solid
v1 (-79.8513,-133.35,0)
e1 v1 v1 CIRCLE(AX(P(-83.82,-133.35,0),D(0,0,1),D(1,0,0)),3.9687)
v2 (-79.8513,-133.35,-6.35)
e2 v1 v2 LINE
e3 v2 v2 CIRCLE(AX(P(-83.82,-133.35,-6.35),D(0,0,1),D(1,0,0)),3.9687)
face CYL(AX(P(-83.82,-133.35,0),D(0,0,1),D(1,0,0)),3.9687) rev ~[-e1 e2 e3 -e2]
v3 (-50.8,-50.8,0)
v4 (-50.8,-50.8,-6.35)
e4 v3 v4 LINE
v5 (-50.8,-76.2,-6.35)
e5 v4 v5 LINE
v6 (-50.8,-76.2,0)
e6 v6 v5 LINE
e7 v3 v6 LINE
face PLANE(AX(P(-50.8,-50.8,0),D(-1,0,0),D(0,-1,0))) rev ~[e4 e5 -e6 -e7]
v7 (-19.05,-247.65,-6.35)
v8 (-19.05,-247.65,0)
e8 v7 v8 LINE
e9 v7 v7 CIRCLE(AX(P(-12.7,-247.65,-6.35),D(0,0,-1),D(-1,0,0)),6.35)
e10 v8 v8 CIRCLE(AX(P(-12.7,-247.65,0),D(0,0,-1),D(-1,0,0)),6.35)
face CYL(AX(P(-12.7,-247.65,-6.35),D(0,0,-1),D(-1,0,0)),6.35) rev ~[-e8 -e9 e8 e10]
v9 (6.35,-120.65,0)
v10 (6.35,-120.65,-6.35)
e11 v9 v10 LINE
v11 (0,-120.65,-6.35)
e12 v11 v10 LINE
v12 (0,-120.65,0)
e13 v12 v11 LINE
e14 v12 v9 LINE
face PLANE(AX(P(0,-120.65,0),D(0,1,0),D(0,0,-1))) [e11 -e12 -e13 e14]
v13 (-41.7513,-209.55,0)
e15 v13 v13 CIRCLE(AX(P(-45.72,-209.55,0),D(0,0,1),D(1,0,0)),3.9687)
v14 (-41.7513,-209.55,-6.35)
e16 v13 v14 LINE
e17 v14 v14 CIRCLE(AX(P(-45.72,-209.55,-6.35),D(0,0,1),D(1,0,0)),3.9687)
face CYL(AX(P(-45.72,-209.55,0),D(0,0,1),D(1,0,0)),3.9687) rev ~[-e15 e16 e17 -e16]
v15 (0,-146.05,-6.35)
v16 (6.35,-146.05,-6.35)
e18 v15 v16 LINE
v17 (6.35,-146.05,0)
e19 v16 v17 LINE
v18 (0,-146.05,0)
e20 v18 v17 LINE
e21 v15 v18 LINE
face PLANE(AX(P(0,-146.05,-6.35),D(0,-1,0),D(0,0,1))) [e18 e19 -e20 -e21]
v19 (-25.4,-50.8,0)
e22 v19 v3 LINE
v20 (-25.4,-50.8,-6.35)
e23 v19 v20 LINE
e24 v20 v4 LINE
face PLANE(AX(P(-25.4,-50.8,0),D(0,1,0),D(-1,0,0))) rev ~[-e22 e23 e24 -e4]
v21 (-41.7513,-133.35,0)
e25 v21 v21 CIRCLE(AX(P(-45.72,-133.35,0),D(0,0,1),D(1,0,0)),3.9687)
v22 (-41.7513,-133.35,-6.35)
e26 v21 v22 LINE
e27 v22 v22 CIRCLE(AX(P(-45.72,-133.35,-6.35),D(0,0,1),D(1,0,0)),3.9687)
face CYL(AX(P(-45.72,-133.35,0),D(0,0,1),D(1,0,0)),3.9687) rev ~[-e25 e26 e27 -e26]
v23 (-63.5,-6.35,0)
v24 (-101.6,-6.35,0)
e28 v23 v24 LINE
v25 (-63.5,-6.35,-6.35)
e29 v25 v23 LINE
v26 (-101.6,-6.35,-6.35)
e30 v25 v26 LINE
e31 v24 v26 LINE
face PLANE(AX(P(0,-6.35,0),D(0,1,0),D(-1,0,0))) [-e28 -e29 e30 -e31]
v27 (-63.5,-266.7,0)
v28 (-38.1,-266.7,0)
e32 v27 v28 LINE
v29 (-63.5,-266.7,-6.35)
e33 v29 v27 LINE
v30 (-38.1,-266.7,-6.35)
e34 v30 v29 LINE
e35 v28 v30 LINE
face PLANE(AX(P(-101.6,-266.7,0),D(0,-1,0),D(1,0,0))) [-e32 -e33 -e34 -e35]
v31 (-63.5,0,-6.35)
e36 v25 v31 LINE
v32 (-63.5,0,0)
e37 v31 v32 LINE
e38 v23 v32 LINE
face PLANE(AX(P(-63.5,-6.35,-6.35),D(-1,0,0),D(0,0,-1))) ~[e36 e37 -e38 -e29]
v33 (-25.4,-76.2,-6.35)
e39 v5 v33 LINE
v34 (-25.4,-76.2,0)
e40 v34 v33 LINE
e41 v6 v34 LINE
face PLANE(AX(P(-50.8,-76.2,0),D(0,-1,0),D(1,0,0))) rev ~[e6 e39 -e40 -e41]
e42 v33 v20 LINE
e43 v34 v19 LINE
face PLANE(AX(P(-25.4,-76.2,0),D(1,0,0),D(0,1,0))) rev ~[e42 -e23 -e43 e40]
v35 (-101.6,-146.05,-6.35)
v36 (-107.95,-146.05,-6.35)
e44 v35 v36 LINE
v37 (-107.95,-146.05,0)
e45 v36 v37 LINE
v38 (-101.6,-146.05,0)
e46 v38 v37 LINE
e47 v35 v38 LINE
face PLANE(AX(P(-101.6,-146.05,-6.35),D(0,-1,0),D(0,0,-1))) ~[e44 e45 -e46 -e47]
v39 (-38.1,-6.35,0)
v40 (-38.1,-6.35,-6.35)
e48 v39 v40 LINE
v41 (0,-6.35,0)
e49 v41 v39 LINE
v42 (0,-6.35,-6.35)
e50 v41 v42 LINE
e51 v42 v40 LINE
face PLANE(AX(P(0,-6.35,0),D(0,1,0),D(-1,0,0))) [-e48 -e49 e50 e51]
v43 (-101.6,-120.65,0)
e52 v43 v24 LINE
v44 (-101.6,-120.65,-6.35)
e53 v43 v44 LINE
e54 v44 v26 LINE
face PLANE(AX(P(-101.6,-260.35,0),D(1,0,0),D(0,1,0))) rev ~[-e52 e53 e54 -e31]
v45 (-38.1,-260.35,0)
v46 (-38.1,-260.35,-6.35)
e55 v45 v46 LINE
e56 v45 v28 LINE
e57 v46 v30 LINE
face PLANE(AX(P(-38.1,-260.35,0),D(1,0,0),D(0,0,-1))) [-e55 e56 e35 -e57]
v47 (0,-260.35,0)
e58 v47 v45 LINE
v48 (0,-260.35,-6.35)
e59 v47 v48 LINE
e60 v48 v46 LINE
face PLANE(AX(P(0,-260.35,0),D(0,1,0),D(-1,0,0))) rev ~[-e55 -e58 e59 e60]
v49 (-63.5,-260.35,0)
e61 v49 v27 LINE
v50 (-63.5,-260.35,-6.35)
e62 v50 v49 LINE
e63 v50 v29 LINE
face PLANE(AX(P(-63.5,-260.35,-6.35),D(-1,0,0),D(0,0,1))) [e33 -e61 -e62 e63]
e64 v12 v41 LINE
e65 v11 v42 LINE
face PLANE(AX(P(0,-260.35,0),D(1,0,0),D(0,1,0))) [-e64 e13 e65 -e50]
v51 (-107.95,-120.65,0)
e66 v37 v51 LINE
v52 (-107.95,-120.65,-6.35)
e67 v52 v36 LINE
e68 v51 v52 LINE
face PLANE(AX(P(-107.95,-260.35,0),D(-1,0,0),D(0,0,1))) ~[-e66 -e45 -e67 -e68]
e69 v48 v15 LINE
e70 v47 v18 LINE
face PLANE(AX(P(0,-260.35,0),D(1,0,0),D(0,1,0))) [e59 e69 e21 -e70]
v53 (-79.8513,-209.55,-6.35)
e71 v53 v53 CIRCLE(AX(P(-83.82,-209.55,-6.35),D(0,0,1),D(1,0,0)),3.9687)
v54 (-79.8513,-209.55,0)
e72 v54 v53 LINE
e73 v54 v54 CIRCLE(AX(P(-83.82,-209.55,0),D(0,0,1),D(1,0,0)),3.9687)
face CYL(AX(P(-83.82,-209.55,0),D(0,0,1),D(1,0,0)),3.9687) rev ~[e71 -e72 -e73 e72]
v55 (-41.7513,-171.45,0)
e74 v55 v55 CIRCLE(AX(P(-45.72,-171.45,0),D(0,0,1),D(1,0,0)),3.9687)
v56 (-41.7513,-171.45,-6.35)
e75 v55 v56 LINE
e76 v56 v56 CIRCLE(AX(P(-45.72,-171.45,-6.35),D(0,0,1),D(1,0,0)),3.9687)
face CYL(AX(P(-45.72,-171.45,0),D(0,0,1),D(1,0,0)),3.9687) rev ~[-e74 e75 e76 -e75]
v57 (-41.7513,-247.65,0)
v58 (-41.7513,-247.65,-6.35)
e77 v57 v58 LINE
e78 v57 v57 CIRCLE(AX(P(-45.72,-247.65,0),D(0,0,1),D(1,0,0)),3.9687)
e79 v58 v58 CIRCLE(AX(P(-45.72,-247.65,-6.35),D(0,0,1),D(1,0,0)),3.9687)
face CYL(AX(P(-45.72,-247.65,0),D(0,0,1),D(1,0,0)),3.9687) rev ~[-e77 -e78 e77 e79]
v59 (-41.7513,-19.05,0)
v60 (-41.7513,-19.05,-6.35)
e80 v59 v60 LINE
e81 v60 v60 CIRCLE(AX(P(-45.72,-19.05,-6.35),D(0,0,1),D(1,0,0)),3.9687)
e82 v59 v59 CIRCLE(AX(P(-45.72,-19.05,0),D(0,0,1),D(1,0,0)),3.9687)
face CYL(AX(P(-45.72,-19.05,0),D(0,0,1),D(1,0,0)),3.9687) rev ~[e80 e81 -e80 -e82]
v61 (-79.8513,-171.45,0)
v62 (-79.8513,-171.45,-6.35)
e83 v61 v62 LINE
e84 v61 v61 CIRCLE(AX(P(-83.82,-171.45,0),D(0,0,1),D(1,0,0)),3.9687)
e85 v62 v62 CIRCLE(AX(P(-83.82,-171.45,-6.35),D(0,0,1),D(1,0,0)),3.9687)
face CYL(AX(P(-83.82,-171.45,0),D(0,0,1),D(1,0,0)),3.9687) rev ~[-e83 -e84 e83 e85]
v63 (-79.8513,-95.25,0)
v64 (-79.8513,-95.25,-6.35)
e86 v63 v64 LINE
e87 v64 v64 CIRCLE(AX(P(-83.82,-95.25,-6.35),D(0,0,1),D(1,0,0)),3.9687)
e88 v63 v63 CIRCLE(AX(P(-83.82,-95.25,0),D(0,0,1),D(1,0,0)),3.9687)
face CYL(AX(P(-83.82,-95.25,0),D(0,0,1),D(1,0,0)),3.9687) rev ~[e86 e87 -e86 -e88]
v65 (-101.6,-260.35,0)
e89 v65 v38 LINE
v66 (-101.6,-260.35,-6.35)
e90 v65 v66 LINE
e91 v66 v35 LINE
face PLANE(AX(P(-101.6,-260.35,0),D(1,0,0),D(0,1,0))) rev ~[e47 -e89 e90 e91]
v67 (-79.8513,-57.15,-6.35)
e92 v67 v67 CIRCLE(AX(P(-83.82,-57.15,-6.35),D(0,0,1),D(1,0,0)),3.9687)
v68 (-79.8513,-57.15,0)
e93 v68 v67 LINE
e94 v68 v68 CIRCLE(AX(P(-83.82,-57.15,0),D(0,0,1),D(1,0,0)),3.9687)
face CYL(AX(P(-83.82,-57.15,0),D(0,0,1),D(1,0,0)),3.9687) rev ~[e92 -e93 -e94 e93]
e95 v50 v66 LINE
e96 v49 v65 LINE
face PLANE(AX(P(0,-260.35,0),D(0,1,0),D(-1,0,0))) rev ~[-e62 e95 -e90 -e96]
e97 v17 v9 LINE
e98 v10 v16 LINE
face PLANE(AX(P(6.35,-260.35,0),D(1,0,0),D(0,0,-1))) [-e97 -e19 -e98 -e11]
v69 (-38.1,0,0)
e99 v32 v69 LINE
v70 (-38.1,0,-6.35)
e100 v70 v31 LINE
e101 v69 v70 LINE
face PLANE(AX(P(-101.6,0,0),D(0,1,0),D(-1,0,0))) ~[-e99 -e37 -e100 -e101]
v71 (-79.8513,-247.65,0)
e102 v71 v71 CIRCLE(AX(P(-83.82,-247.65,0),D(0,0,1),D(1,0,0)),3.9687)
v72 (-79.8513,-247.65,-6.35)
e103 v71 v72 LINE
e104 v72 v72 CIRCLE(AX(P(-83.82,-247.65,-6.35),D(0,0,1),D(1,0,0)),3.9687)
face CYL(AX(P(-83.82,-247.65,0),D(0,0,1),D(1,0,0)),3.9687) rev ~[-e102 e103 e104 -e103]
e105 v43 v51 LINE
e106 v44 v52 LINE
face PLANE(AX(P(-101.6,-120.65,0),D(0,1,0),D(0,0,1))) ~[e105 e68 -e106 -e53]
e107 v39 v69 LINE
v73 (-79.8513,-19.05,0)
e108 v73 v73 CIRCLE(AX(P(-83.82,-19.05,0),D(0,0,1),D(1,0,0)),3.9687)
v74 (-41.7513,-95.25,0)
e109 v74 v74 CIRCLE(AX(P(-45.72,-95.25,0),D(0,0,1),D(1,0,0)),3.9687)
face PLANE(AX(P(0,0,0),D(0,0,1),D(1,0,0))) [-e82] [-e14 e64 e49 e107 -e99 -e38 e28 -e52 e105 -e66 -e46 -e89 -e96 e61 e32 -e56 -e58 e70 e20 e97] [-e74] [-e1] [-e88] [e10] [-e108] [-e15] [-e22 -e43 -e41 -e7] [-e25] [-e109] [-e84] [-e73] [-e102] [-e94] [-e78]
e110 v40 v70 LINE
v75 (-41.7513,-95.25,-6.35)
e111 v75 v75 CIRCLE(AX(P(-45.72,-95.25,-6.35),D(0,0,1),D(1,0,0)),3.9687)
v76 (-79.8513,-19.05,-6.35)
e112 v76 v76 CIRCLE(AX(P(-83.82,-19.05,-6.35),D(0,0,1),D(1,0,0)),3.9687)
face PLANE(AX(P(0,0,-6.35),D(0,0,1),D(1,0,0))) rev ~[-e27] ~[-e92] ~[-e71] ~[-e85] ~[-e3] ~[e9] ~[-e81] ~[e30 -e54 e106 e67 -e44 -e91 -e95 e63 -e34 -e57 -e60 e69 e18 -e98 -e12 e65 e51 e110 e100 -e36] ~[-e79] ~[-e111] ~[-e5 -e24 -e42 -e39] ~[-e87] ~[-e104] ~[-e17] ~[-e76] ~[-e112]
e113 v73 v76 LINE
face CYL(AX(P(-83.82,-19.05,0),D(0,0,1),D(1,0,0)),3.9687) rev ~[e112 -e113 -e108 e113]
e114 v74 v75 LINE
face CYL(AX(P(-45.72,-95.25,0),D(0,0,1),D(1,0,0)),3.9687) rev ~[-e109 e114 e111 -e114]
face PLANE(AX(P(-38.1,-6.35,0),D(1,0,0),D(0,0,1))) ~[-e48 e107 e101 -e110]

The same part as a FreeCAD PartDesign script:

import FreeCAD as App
import Part
import Sketcher
Q = App.Units.Quantity


def add_polygon(sketch, points):
    """Adds a closed chain of lines whose ends are joined by coincident constraints."""
    first, n = sketch.GeometryCount, len(points)
    for a, b in zip(points, points[1:] + points[:1]):
        sketch.addGeometry(Part.LineSegment(App.Vector(*a, 0), App.Vector(*b, 0)), False)
    for i in range(n):
        sketch.addConstraint(Sketcher.Constraint("Coincident", first + i, 2, first + (i + 1) % n, 1))

doc = App.newDocument("Part")
params = doc.addObject("Spreadsheet::Sheet", "Params")
for row, (alias, value) in enumerate([
    ("sketch1_width", "4 in"),
    ("sketch1_height", "10 in"),
    ("pad1_length", "0.25 in"),
    ("sketch2_width", "1 in"),
    ("sketch2_height", "0.25 in"),
    ("pad2_length", "0.25 in"),
    ("sketch3_width", "1 in"),
    ("sketch3_height", "0.25 in"),
    ("pad3_length", "0.25 in"),
    ("sketch4_width", "1 in"),
    ("sketch5_diameter", "0.3125 in"),
    ("sketch6_diameter", "0.5 in"),
], start=1):
    params.set(f"A{row}", alias)
    params.set(f"B{row}", "=" + value)
    params.setAlias(f"B{row}", alias)

body = doc.addObject("PartDesign::Body", "Body")

# Sketch on XY plane
sketch1 = body.newObject("Sketcher::SketchObject", "Sketch")
sketch1.AttachmentSupport = (doc.getObject("XY_Plane"), [""])
sketch1.MapMode = "FlatFace"
add_polygon(sketch1, [(-102, -6), (-102, -260), (0, -260), (0, -6)])  # lines 0-3
sketch1.addConstraint([
    Sketcher.Constraint("Vertical", 0),
    Sketcher.Constraint("Horizontal", 1),
    Sketcher.Constraint("Vertical", 2),
    Sketcher.Constraint("Horizontal", 3),
    Sketcher.Constraint("PointOnObject", 1, 2, -2),
    Sketcher.Constraint("DistanceX", 1, 1, 1, 2, Q("4 in")),
    Sketcher.Constraint("DistanceY", 0, 2, 0, 1, Q("10 in")),
    Sketcher.Constraint("DistanceY", 0, 2, -1, 1, Q("10.25 in")),
])
sketch1.setExpression("Constraints[9]", "Params.sketch1_width")
sketch1.setExpression("Constraints[10]", "Params.sketch1_height")
pad1 = body.newObject("PartDesign::Pad", "Pad")
pad1.Profile = sketch1
pad1.setExpression("Length", "Params.pad1_length")
pad1.Reversed = True

# Sketch on XZ plane
sketch2 = body.newObject("Sketcher::SketchObject", "Sketch001")
sketch2.AttachmentSupport = (doc.getObject("XZ_Plane"), [""])
sketch2.MapMode = "FlatFace"
sketch2.AttachmentOffset = App.Placement(App.Vector(0, 0, 10.25 * 25.4), App.Rotation())
add_polygon(sketch2, [(-38, 0), (-64, 0), (-64, -6), (-38, -6)])  # lines 0-3
sketch2.addConstraint([
    Sketcher.Constraint("Horizontal", 0),
    Sketcher.Constraint("Vertical", 1),
    Sketcher.Constraint("Horizontal", 2),
    Sketcher.Constraint("Vertical", 3),
    Sketcher.Constraint("PointOnObject", 0, 2, -1),
    Sketcher.Constraint("DistanceX", 0, 2, 0, 1, Q("1 in")),
    Sketcher.Constraint("DistanceX", 2, 2, -1, 1, Q("1.5 in")),
    Sketcher.Constraint("DistanceY", 1, 2, 1, 1, Q("0.25 in")),
])
sketch2.setExpression("Constraints[9]", "Params.sketch2_width")
sketch2.setExpression("Constraints[11]", "Params.sketch2_height")
pad2 = body.newObject("PartDesign::Pad", "Pad001")
pad2.Profile = sketch2
pad2.setExpression("Length", "Params.pad2_length")
doc.recompute()

datumplane = body.newObject("PartDesign::Plane", "DatumPlane")
datumplane.AttachmentSupport = (doc.getObject("XZ_Plane"), [""])
datumplane.MapMode = "FlatFace"
datumplane.AttachmentOffset = App.Placement(App.Vector(0, 0, 5.25 * 25.4), App.Rotation())
mirrored = body.newObject("PartDesign::Mirrored", "Mirrored")
mirrored.Originals = [pad2]
mirrored.MirrorPlane = (datumplane, [""])
body.Tip = mirrored

# Sketch on YZ plane
sketch3 = body.newObject("Sketcher::SketchObject", "Sketch002")
sketch3.AttachmentSupport = (doc.getObject("YZ_Plane"), [""])
sketch3.MapMode = "FlatFace"
add_polygon(sketch3, [(-121, -6), (-121, 0), (-146, 0), (-146, -6)])  # lines 0-3
sketch3.addConstraint([
    Sketcher.Constraint("Vertical", 0),
    Sketcher.Constraint("Horizontal", 1),
    Sketcher.Constraint("Vertical", 2),
    Sketcher.Constraint("Horizontal", 3),
    Sketcher.Constraint("PointOnObject", 0, 2, -1),
    Sketcher.Constraint("DistanceX", 1, 2, 1, 1, Q("1 in")),
    Sketcher.Constraint("DistanceY", 0, 1, 0, 2, Q("0.25 in")),
    Sketcher.Constraint("DistanceX", 0, 2, -1, 1, Q("4.75 in")),
])
sketch3.setExpression("Constraints[9]", "Params.sketch3_width")
sketch3.setExpression("Constraints[10]", "Params.sketch3_height")
pad3 = body.newObject("PartDesign::Pad", "Pad002")
pad3.Profile = sketch3
pad3.setExpression("Length", "Params.pad3_length")
doc.recompute()

datumplane2 = body.newObject("PartDesign::Plane", "DatumPlane001")
datumplane2.AttachmentSupport = (doc.getObject("YZ_Plane"), [""])
datumplane2.MapMode = "FlatFace"
datumplane2.AttachmentOffset = App.Placement(App.Vector(0, 0, -2 * 25.4), App.Rotation())
mirrored2 = body.newObject("PartDesign::Mirrored", "Mirrored001")
mirrored2.Originals = [pad3]
mirrored2.MirrorPlane = (datumplane2, [""])
body.Tip = mirrored2

# Sketch on XY plane
sketch4 = body.newObject("Sketcher::SketchObject", "Sketch003")
sketch4.AttachmentSupport = (doc.getObject("XY_Plane"), [""])
sketch4.MapMode = "FlatFace"
add_polygon(sketch4, [(-25, -76), (-25, -51), (-51, -51), (-51, -76)])  # lines 0-3
sketch4.addConstraint([
    Sketcher.Constraint("Vertical", 0),
    Sketcher.Constraint("Horizontal", 1),
    Sketcher.Constraint("Vertical", 2),
    Sketcher.Constraint("Horizontal", 3),
    Sketcher.Constraint("Equal", 3, 0),
    Sketcher.Constraint("DistanceX", 1, 2, 1, 1, Q("1 in")),
    Sketcher.Constraint("DistanceX", 0, 2, -1, 1, Q("1 in")),
    Sketcher.Constraint("DistanceY", 0, 2, -1, 1, Q("2 in")),
])
sketch4.setExpression("Constraints[9]", "Params.sketch4_width")
pocket1 = body.newObject("PartDesign::Pocket", "Pocket")
pocket1.Profile = sketch4
pocket1.Type = "ThroughAll"

# Sketch on XY plane
sketch5 = body.newObject("Sketcher::SketchObject", "Sketch004")
sketch5.AttachmentSupport = (doc.getObject("XY_Plane"), [""])
sketch5.MapMode = "FlatFace"
sketch5.addGeometry([
    Part.Circle(App.Vector(-83.8, -19.1, 0), App.Vector(0, 0, 1), 4),  # 0
    Part.Circle(App.Vector(-83.8, -57.1, 0), App.Vector(0, 0, 1), 4),  # 1
    Part.Circle(App.Vector(-83.8, -95.2, 0), App.Vector(0, 0, 1), 4),  # 2
    Part.Circle(App.Vector(-83.8, -133.3, 0), App.Vector(0, 0, 1), 4),  # 3
    Part.Circle(App.Vector(-83.8, -171.4, 0), App.Vector(0, 0, 1), 4),  # 4
    Part.Circle(App.Vector(-83.8, -209.6, 0), App.Vector(0, 0, 1), 4),  # 5
    Part.Circle(App.Vector(-83.8, -247.7, 0), App.Vector(0, 0, 1), 4),  # 6
    Part.Circle(App.Vector(-45.7, -19.1, 0), App.Vector(0, 0, 1), 4),  # 7
    Part.Circle(App.Vector(-45.7, -95.2, 0), App.Vector(0, 0, 1), 4),  # 8
    Part.Circle(App.Vector(-45.7, -133.3, 0), App.Vector(0, 0, 1), 4),  # 9
    Part.Circle(App.Vector(-45.7, -171.4, 0), App.Vector(0, 0, 1), 4),  # 10
    Part.Circle(App.Vector(-45.7, -209.6, 0), App.Vector(0, 0, 1), 4),  # 11
    Part.Circle(App.Vector(-45.7, -247.7, 0), App.Vector(0, 0, 1), 4),  # 12
], False)
sketch5.addConstraint([
    Sketcher.Constraint("Equal", 0, 1),
    Sketcher.Constraint("Equal", 1, 2),
    Sketcher.Constraint("Equal", 2, 3),
    Sketcher.Constraint("Equal", 3, 4),
    Sketcher.Constraint("Equal", 4, 5),
    Sketcher.Constraint("Equal", 5, 6),
    Sketcher.Constraint("Equal", 6, 7),
    Sketcher.Constraint("Equal", 7, 8),
    Sketcher.Constraint("Equal", 8, 9),
    Sketcher.Constraint("Equal", 9, 10),
    Sketcher.Constraint("Equal", 10, 11),
    Sketcher.Constraint("Equal", 11, 12),
    Sketcher.Constraint("Horizontal", 0, 3, 7, 3),
    Sketcher.Constraint("Horizontal", 2, 3, 8, 3),
    Sketcher.Constraint("Horizontal", 3, 3, 9, 3),
    Sketcher.Constraint("Horizontal", 4, 3, 10, 3),
    Sketcher.Constraint("Horizontal", 5, 3, 11, 3),
    Sketcher.Constraint("Horizontal", 6, 3, 12, 3),
    Sketcher.Constraint("Vertical", 0, 3, 1, 3),
    Sketcher.Constraint("Vertical", 1, 3, 2, 3),
    Sketcher.Constraint("Vertical", 2, 3, 3, 3),
    Sketcher.Constraint("Vertical", 3, 3, 4, 3),
    Sketcher.Constraint("Vertical", 4, 3, 5, 3),
    Sketcher.Constraint("Vertical", 5, 3, 6, 3),
    Sketcher.Constraint("Vertical", 7, 3, 8, 3),
    Sketcher.Constraint("Vertical", 8, 3, 9, 3),
    Sketcher.Constraint("Vertical", 9, 3, 10, 3),
    Sketcher.Constraint("Vertical", 10, 3, 11, 3),
    Sketcher.Constraint("Vertical", 11, 3, 12, 3),
    Sketcher.Constraint("Diameter", 0, Q("0.3125 in")),
    Sketcher.Constraint("DistanceY", 1, 3, 0, 3, Q("1.5 in")),
    Sketcher.Constraint("DistanceY", 2, 3, 1, 3, Q("1.5 in")),
    Sketcher.Constraint("DistanceY", 3, 3, 2, 3, Q("1.5 in")),
    Sketcher.Constraint("DistanceY", 4, 3, 3, 3, Q("1.5 in")),
    Sketcher.Constraint("DistanceY", 5, 3, 4, 3, Q("1.5 in")),
    Sketcher.Constraint("DistanceY", 6, 3, 5, 3, Q("1.5 in")),
    Sketcher.Constraint("DistanceX", 0, 3, 7, 3, Q("1.5 in")),
    Sketcher.Constraint("DistanceX", 0, 3, -1, 1, Q("3.3 in")),
    Sketcher.Constraint("DistanceY", 0, 3, -1, 1, Q("0.75 in")),
])
sketch5.setExpression("Constraints[29]", "Params.sketch5_diameter")
pocket2 = body.newObject("PartDesign::Pocket", "Pocket001")
pocket2.Profile = sketch5
pocket2.Type = "ThroughAll"

# Sketch on XY plane
sketch6 = body.newObject("Sketcher::SketchObject", "Sketch005")
sketch6.AttachmentSupport = (doc.getObject("XY_Plane"), [""])
sketch6.MapMode = "FlatFace"
sketch6.AttachmentOffset = App.Placement(App.Vector(0, 0, -0.25 * 25.4), App.Rotation())
sketch6.addGeometry(Part.Circle(App.Vector(-13, -248, 0), App.Vector(0, 0, 1), 6), False)
sketch6.addConstraint([
    Sketcher.Constraint("Diameter", 0, Q("0.5 in")),
    Sketcher.Constraint("DistanceX", 0, 3, -1, 1, Q("0.5 in")),
    Sketcher.Constraint("DistanceY", 0, 3, -1, 1, Q("9.75 in")),
])
sketch6.setExpression("Constraints[0]", "Params.sketch6_diameter")
pocket3 = body.newObject("PartDesign::Pocket", "Pocket002")
pocket3.Profile = sketch6
pocket3.Type = "ThroughAll"
pocket3.Reversed = True

doc.recompute()
